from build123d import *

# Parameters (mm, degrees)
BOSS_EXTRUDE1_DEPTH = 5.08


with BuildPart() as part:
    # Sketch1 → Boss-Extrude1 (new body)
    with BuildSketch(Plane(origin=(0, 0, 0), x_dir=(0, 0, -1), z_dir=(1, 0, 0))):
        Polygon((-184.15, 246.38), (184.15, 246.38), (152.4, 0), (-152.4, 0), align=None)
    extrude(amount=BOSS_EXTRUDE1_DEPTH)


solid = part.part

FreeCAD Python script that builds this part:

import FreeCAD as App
import Part
import Sketcher

V = App.Vector
Q = App.Units.Quantity

doc = App.newDocument("Part")
params = doc.addObject("Spreadsheet::Sheet", "Params")
for row, (alias, value) in enumerate([
    ("sketch1_height", "12 in"),
    ("sketch1_height2", "14.5 in"),
    ("pad1_length", "0.2 in"),
], start=1):
    params.set(f"A{row}", alias)
    params.set(f"B{row}", "=" + value)
    params.setAlias(f"B{row}", alias)

body = doc.addObject("PartDesign::Body", "Body")

# Sketch on YZ plane
sketch1 = doc.addObject("Sketcher::SketchObject", "Sketch")
body.addObject(sketch1)
sketch1.AttachmentSupport = (doc.YZ_Plane, [""])
sketch1.MapMode = "FlatFace"
sketch1.addGeometry([
    Part.LineSegment(V(246.38, -184.15, 0), V(246.38, 184.15, 0)),
    Part.LineSegment(V(246.38, 184.15, 0), V(0, 152.4, 0)),
    Part.LineSegment(V(0, 152.4, 0), V(0, -152.4, 0)),
    Part.LineSegment(V(0, -152.4, 0), V(246.38, -184.15, 0)),
], False)
sketch1.addConstraint([
    Sketcher.Constraint("Coincident", 0, 2, 1, 1),
    Sketcher.Constraint("Coincident", 1, 2, 2, 1),
    Sketcher.Constraint("Coincident", 2, 2, 3, 1),
    Sketcher.Constraint("Coincident", 3, 2, 0, 1),
    Sketcher.Constraint("Vertical", 0),
    Sketcher.Constraint("Vertical", 2),
    Sketcher.Constraint("Symmetric", 1, 2, 2, 2, -1, 1),
    Sketcher.Constraint("Equal", 1, 3),
    Sketcher.Constraint("DistanceY", 2, 2, 2, 1, Q("12 in")),
    Sketcher.Constraint("DistanceY", 0, 1, 0, 2, Q("14.5 in")),
    Sketcher.Constraint("DistanceX", -1, 1, 0, 2, Q("9.7 in")),
])
sketch1.setExpression("Constraints[8]", "Params.sketch1_height")
sketch1.setExpression("Constraints[9]", "Params.sketch1_height2")
pad1 = doc.addObject("PartDesign::Pad", "Pad")
body.addObject(pad1)
pad1.Profile = sketch1
pad1.setExpression("Length", "Params.pad1_length")

doc.recompute()
